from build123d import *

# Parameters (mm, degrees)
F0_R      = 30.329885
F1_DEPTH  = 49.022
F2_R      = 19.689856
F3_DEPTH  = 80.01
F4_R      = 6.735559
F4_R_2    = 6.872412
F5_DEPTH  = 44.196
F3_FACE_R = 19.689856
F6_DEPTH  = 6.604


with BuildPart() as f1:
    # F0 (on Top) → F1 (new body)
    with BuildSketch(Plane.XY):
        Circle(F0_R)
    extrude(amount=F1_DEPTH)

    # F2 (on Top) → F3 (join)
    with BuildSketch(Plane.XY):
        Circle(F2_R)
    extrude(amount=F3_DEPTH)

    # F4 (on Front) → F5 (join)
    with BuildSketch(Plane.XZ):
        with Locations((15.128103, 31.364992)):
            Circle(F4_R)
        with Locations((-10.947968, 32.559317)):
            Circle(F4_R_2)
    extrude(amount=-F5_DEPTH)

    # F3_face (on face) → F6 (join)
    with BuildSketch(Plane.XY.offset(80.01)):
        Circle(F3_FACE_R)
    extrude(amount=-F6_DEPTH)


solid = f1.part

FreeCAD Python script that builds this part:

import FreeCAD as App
import Part
import Sketcher

V = App.Vector
Q = App.Units.Quantity

doc = App.newDocument("Part")
body = doc.addObject("PartDesign::Body", "Body")

sketch1 = doc.addObject("Sketcher::SketchObject", "Sketch")
body.addObject(sketch1)
sketch1.AttachmentSupport = (doc.XY_Plane, [""])
sketch1.MapMode = "FlatFace"
sketch1.addGeometry(Part.Circle(V(0, 0, 0), V(0, 0, 1), 30), False)
sketch1.addConstraint([
    Sketcher.Constraint("Coincident", 0, 3, -1, 1),
    Sketcher.Constraint("Diameter", 0, Q("60.65977 mm")),
])
pad1 = doc.addObject("PartDesign::Pad", "Pad")
body.addObject(pad1)
pad1.Profile = sketch1
pad1.Length = Q("1.93 in")

sketch2 = doc.addObject("Sketcher::SketchObject", "Sketch001")
body.addObject(sketch2)
sketch2.AttachmentSupport = (doc.XY_Plane, [""])
sketch2.MapMode = "FlatFace"
sketch2.addGeometry(Part.Circle(V(0, 0, 0), V(0, 0, 1), 20), False)
sketch2.addConstraint([
    Sketcher.Constraint("Coincident", 0, 3, -1, 1),
    Sketcher.Constraint("Diameter", 0, Q("39.379712 mm")),
])
pad2 = doc.addObject("PartDesign::Pad", "Pad001")
body.addObject(pad2)
pad2.Profile = sketch2
pad2.Length = Q("3.15 in")

sketch3 = doc.addObject("Sketcher::SketchObject", "Sketch002")
body.addObject(sketch3)
sketch3.AttachmentSupport = (doc.XZ_Plane, [""])
sketch3.MapMode = "FlatFace"
sketch3.addGeometry([
    Part.Circle(V(15, 31, 0), V(0, 0, 1), 7),
    Part.Circle(V(-11, 33, 0), V(0, 0, 1), 7),
], False)
sketch3.addConstraint([
    Sketcher.Constraint("Diameter", 0, Q("13.471118 mm")),
    Sketcher.Constraint("Diameter", 1, Q("13.744824 mm")),
    Sketcher.Constraint("DistanceX", 1, 3, 0, 3, Q("26.076071 mm")),
    Sketcher.Constraint("DistanceX", -1, 1, 0, 3, Q("15.128103 mm")),
    Sketcher.Constraint("DistanceY", -1, 1, 0, 3, Q("31.364992 mm")),
    Sketcher.Constraint("DistanceY", -1, 1, 1, 3, Q("32.559317 mm")),
])
pad3 = doc.addObject("PartDesign::Pad", "Pad002")
body.addObject(pad3)
pad3.Profile = sketch3
pad3.Length = Q("1.74 in")
pad3.Reversed = True

sketch4 = doc.addObject("Sketcher::SketchObject", "Sketch003")
body.addObject(sketch4)
sketch4.AttachmentSupport = (doc.XY_Plane, [""])
sketch4.MapMode = "FlatFace"
sketch4.AttachmentOffset = App.Placement(V(0, 0, 3.15 * 25.4), App.Rotation())
sketch4.addGeometry(Part.Circle(V(0, 0, 0), V(0, 0, 1), 20), False)
sketch4.addConstraint([
    Sketcher.Constraint("Coincident", 0, 3, -1, 1),
    Sketcher.Constraint("Diameter", 0, Q("39.379712 mm")),
])
pad4 = doc.addObject("PartDesign::Pad", "Pad003")
body.addObject(pad4)
pad4.Profile = sketch4
pad4.Length = Q("0.26 in")
pad4.Reversed = True

doc.recompute()
